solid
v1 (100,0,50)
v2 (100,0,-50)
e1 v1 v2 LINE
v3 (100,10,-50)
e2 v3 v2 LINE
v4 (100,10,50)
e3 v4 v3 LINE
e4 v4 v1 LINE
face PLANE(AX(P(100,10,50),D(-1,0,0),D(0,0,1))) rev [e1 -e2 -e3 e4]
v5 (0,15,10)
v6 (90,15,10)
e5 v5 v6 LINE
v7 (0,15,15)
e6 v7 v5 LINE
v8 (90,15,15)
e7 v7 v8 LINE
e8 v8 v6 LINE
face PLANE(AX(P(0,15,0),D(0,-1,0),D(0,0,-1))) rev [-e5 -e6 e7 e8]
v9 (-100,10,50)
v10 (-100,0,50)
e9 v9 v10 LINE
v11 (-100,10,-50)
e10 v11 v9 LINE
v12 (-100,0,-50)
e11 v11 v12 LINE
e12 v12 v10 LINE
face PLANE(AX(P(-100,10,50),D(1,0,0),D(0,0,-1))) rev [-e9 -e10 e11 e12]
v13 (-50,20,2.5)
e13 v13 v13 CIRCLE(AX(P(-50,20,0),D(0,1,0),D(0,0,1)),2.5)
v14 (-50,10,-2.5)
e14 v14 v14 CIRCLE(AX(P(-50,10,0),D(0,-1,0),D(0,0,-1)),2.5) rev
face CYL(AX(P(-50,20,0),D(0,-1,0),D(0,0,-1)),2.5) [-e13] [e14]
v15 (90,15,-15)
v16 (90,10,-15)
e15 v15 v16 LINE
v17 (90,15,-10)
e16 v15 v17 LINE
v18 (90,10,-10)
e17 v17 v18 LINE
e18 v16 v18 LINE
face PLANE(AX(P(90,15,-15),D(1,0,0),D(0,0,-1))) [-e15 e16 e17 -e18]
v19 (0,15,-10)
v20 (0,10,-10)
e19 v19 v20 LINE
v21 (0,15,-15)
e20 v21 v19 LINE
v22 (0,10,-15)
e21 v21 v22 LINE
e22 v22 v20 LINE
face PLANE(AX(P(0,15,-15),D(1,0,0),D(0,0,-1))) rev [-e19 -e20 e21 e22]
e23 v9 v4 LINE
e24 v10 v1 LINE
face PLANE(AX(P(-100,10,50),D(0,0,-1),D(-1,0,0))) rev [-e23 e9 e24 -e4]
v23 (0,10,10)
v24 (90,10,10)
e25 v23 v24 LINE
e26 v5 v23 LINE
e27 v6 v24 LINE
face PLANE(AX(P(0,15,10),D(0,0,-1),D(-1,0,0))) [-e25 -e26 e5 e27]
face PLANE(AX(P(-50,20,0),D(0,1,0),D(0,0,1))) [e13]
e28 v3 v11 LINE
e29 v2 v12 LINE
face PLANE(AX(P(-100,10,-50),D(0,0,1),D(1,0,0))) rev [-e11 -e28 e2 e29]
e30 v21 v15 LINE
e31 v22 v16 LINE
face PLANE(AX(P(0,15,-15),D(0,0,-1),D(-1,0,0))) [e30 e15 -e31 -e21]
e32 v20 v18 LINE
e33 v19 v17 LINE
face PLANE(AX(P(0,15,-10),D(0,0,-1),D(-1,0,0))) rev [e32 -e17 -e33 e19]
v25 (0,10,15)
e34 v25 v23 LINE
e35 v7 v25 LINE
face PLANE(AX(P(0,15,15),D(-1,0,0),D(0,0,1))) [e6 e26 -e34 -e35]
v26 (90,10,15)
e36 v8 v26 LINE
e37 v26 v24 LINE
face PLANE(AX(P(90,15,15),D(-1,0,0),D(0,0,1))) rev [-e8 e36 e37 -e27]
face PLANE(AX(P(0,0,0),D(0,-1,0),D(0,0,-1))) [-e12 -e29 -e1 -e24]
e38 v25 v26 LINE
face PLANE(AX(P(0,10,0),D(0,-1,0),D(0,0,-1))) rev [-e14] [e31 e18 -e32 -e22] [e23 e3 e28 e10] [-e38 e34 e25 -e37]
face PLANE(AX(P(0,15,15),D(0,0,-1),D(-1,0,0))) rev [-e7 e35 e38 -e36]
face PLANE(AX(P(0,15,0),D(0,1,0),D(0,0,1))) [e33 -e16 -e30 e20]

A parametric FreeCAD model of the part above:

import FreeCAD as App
import Part
import Sketcher
from FreeCAD import Vector
Q = App.Units.Quantity

doc = App.newDocument("Part")
body = doc.addObject("PartDesign::Body", "Body")

# Sketch on XZ plane
sketch1 = doc.addObject("Sketcher::SketchObject", "Sketch")
body.addObject(sketch1)
sketch1.AttachmentSupport = (doc.XZ_Plane, [""])
sketch1.MapMode = "FlatFace"
sketch1.addGeometry([
    Part.LineSegment(Vector(-100, -50, 0), Vector(-100, 50, 0)),
    Part.LineSegment(Vector(-100, 50, 0), Vector(100, 50, 0)),
    Part.LineSegment(Vector(100, 50, 0), Vector(100, -50, 0)),
    Part.LineSegment(Vector(100, -50, 0), Vector(-100, -50, 0)),
], False)
sketch1.addConstraint([
    Sketcher.Constraint("Coincident", 0, 2, 1, 1),
    Sketcher.Constraint("Coincident", 1, 2, 2, 1),
    Sketcher.Constraint("Coincident", 2, 2, 3, 1),
    Sketcher.Constraint("Coincident", 3, 2, 0, 1),
    Sketcher.Constraint("Vertical", 0),
    Sketcher.Constraint("Horizontal", 1),
    Sketcher.Constraint("Vertical", 2),
    Sketcher.Constraint("Horizontal", 3),
    Sketcher.Constraint("Symmetric", 0, 2, 2, 2, -1, 1),
    Sketcher.Constraint("DistanceX", 1, 1, 1, 2, Q("200 mm")),
    Sketcher.Constraint("DistanceY", 0, 1, 0, 2, Q("100 mm")),
])
pad1 = doc.addObject("PartDesign::Pad", "Pad")
body.addObject(pad1)
pad1.Profile = sketch1
pad1.Length = 10
pad1.Reversed = True

# Sketch on XZ plane
sketch2 = doc.addObject("Sketcher::SketchObject", "Sketch001")
body.addObject(sketch2)
sketch2.AttachmentSupport = (doc.XZ_Plane, [""])
sketch2.MapMode = "FlatFace"
sketch2.AttachmentOffset = App.Placement(Vector(0, 0, -10), App.Rotation())
sketch2.addGeometry([
    Part.LineSegment(Vector(0, -15, 0), Vector(0, -10, 0)),  # 0
    Part.LineSegment(Vector(0, -10, 0), Vector(90, -10, 0)),  # 1
    Part.LineSegment(Vector(90, -10, 0), Vector(90, -15, 0)),  # 2
    Part.LineSegment(Vector(90, -15, 0), Vector(0, -15, 0)),  # 3
    Part.LineSegment(Vector(0, 10, 0), Vector(0, 15, 0)),  # 4
    Part.LineSegment(Vector(0, 15, 0), Vector(90, 15, 0)),  # 5
    Part.LineSegment(Vector(90, 15, 0), Vector(90, 10, 0)),  # 6
    Part.LineSegment(Vector(90, 10, 0), Vector(0, 10, 0)),  # 7
], False)
sketch2.addConstraint([
    Sketcher.Constraint("Coincident", 0, 2, 1, 1),
    Sketcher.Constraint("Coincident", 1, 2, 2, 1),
    Sketcher.Constraint("Coincident", 2, 2, 3, 1),
    Sketcher.Constraint("Coincident", 3, 2, 0, 1),
    Sketcher.Constraint("Coincident", 4, 2, 5, 1),
    Sketcher.Constraint("Coincident", 5, 2, 6, 1),
    Sketcher.Constraint("Coincident", 6, 2, 7, 1),
    Sketcher.Constraint("Coincident", 7, 2, 4, 1),
    Sketcher.Constraint("Vertical", 0),
    Sketcher.Constraint("Horizontal", 1),
    Sketcher.Constraint("Vertical", 2),
    Sketcher.Constraint("Horizontal", 3),
    Sketcher.Constraint("Vertical", 4),
    Sketcher.Constraint("Horizontal", 5),
    Sketcher.Constraint("Vertical", 6),
    Sketcher.Constraint("Horizontal", 7),
    Sketcher.Constraint("Symmetric", 3, 2, 4, 2, -1, 1),
    Sketcher.Constraint("Symmetric", 1, 2, 6, 2, -1),
    Sketcher.Constraint("PointOnObject", 0, 2, -2),
    Sketcher.Constraint("DistanceX", 1, 1, 1, 2, Q("90 mm")),
    Sketcher.Constraint("DistanceY", 0, 1, 0, 2, Q("5 mm")),
    Sketcher.Constraint("DistanceY", 0, 2, -1, 1, Q("10 mm")),
])
pad2 = doc.addObject("PartDesign::Pad", "Pad001")
body.addObject(pad2)
pad2.Profile = sketch2
pad2.Length = 5
pad2.Reversed = True

# Sketch on XZ plane
sketch3 = doc.addObject("Sketcher::SketchObject", "Sketch002")
body.addObject(sketch3)
sketch3.AttachmentSupport = (doc.XZ_Plane, [""])
sketch3.MapMode = "FlatFace"
sketch3.AttachmentOffset = App.Placement(Vector(0, 0, -10), App.Rotation())
sketch3.addGeometry(Part.Circle(Vector(-50, 0, 0), Vector(0, 0, 1), 2.5), False)
sketch3.addConstraint([
    Sketcher.Constraint("PointOnObject", 0, 3, -1),
    Sketcher.Constraint("Diameter", 0, Q("5 mm")),
    Sketcher.Constraint("DistanceX", 0, 3, -1, 1, Q("50 mm")),
])
pad3 = doc.addObject("PartDesign::Pad", "Pad002")
body.addObject(pad3)
pad3.Profile = sketch3
pad3.Length = 10
pad3.Reversed = True

doc.recompute()
